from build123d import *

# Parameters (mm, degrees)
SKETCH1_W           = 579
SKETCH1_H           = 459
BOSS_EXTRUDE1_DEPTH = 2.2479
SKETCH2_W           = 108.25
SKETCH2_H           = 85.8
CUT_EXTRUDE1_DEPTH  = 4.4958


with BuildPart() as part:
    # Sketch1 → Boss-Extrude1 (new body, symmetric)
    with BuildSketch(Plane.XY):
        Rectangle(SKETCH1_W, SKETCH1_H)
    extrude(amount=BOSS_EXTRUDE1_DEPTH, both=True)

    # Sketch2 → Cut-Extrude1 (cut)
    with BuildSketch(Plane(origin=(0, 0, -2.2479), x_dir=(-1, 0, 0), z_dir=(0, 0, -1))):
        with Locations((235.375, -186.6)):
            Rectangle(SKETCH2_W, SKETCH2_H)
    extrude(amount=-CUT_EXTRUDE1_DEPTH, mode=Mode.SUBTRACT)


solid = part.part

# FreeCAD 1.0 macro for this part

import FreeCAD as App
import Part
import Sketcher

V = App.Vector
Q = App.Units.Quantity

doc = App.newDocument("Part")
body = doc.addObject("PartDesign::Body", "Body")

sketch1 = body.newObject("Sketcher::SketchObject", "Sketch")
sketch1.AttachmentSupport = (doc.getObject("XY_Plane"), [""])
sketch1.MapMode = "FlatFace"
sketch1.addGeometry(Part.LineSegment(V(-290, 230, 0), V(-290, -230, 0)), False)
sketch1.addGeometry(Part.LineSegment(V(-290, -230, 0), V(290, -230, 0)), False)
sketch1.addGeometry(Part.LineSegment(V(290, -230, 0), V(290, 230, 0)), False)
sketch1.addGeometry(Part.LineSegment(V(290, 230, 0), V(-290, 230, 0)), False)
sketch1.addConstraint(Sketcher.Constraint("Coincident", 0, 2, 1, 1))
sketch1.addConstraint(Sketcher.Constraint("Coincident", 1, 2, 2, 1))
sketch1.addConstraint(Sketcher.Constraint("Coincident", 2, 2, 3, 1))
sketch1.addConstraint(Sketcher.Constraint("Coincident", 3, 2, 0, 1))
sketch1.addConstraint(Sketcher.Constraint("Vertical", 0))
sketch1.addConstraint(Sketcher.Constraint("Horizontal", 1))
sketch1.addConstraint(Sketcher.Constraint("Vertical", 2))
sketch1.addConstraint(Sketcher.Constraint("Horizontal", 3))
sketch1.addConstraint(Sketcher.Constraint("Symmetric", 0, 2, 2, 2, -1, 1))
sketch1.addConstraint(Sketcher.Constraint("DistanceX", 1, 1, 1, 2, Q("579 mm")))
sketch1.addConstraint(Sketcher.Constraint("DistanceY", 0, 2, 0, 1, Q("459 mm")))
pad1 = body.newObject("PartDesign::Pad", "Pad")
pad1.Profile = sketch1
pad1.Length = 4.4958
pad1.Midplane = True

sketch2 = body.newObject("Sketcher::SketchObject", "Sketch001")
sketch2.AttachmentSupport = (doc.getObject("XY_Plane"), [""])
sketch2.MapMode = "FlatFace"
sketch2.AttachmentOffset = App.Placement(V(0, 0, -2.2479), App.Rotation())
sketch2.addGeometry(Part.LineSegment(V(-181, -144, 0), V(-181, -230, 0)), False)
sketch2.addGeometry(Part.LineSegment(V(-181, -230, 0), V(-290, -230, 0)), False)
sketch2.addGeometry(Part.LineSegment(V(-290, -230, 0), V(-290, -144, 0)), False)
sketch2.addGeometry(Part.LineSegment(V(-290, -144, 0), V(-181, -144, 0)), False)
sketch2.addConstraint(Sketcher.Constraint("Coincident", 0, 2, 1, 1))
sketch2.addConstraint(Sketcher.Constraint("Coincident", 1, 2, 2, 1))
sketch2.addConstraint(Sketcher.Constraint("Coincident", 2, 2, 3, 1))
sketch2.addConstraint(Sketcher.Constraint("Coincident", 3, 2, 0, 1))
sketch2.addConstraint(Sketcher.Constraint("Vertical", 0))
sketch2.addConstraint(Sketcher.Constraint("Horizontal", 1))
sketch2.addConstraint(Sketcher.Constraint("Vertical", 2))
sketch2.addConstraint(Sketcher.Constraint("Horizontal", 3))
sketch2.addConstraint(Sketcher.Constraint("DistanceY", 0, 2, 0, 1, Q("85.8 mm")))
sketch2.addConstraint(Sketcher.Constraint("DistanceX", 1, 2, 1, 1, Q("108.25 mm")))
sketch2.addConstraint(Sketcher.Constraint("DistanceY", 0, 2, -1, 1, Q("229.5 mm")))
sketch2.addConstraint(Sketcher.Constraint("DistanceX", 1, 2, -1, 1, Q("289.5 mm")))
pocket1 = body.newObject("PartDesign::Pocket", "Pocket")
pocket1.Profile = sketch2
pocket1.Length = 4.4958
pocket1.Reversed = True

doc.recompute()
